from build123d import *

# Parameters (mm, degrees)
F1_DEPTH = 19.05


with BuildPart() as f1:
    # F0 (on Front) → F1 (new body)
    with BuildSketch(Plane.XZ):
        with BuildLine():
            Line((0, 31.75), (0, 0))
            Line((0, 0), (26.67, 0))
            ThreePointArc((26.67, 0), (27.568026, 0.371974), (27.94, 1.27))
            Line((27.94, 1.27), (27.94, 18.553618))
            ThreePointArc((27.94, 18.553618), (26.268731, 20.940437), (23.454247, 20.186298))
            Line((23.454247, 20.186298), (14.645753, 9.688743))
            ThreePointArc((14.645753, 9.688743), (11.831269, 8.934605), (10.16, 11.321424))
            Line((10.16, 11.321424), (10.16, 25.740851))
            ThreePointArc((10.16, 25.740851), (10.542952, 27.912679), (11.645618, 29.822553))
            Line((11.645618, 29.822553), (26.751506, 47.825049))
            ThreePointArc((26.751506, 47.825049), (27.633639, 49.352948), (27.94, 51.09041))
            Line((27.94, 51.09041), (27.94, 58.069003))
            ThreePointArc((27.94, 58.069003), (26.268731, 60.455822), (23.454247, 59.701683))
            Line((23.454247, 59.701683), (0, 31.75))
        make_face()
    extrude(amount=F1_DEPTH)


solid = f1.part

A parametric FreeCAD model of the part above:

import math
import FreeCAD as App
import Part
import Sketcher

V = App.Vector
Q = App.Units.Quantity

doc = App.newDocument("Part")
body = doc.addObject("PartDesign::Body", "Body")

# Sketch on XZ plane
sketch1 = body.newObject("Sketcher::SketchObject", "Sketch")
sketch1.AttachmentSupport = (doc.getObject("XZ_Plane"), [""])
sketch1.MapMode = "FlatFace"
sketch1.addGeometry([
    Part.LineSegment(V(0, 31.8, 0), V(0, 0, 0)),  # 0
    Part.LineSegment(V(0, 0, 0), V(26.7, 0, 0)),  # 1
    Part.ArcOfCircle(Part.Circle(V(26.7, 1.3, 0), V(0, 0, 1), 1.3), math.radians(-90), math.radians(0)),  # 2
    Part.LineSegment(V(27.9, 1.3, 0), V(27.9, 18.6, 0)),  # 3
    Part.ArcOfCircle(Part.Circle(V(25.4, 18.6, 0), V(0, 0, 1), 2.5), math.radians(0), math.radians(140)),  # 4
    Part.LineSegment(V(23.5, 20.2, 0), V(14.6, 9.7, 0)),  # 5
    Part.ArcOfCircle(Part.Circle(V(12.7, 11.3, 0), V(0, 0, 1), 2.5), math.radians(-180), math.radians(-40)),  # 6
    Part.LineSegment(V(10.2, 11.3, 0), V(10.2, 25.7, 0)),  # 7
    Part.ArcOfCircle(Part.Circle(V(16.5, 25.7, 0), V(0, 0, 1), 6.4), math.radians(140), math.radians(180)),  # 8
    Part.LineSegment(V(11.6, 29.8, 0), V(26.8, 47.8, 0)),  # 9
    Part.ArcOfCircle(Part.Circle(V(22.9, 51.1, 0), V(0, 0, 1), 5.1), math.radians(-40), math.radians(0)),  # 10
    Part.LineSegment(V(27.9, 51.1, 0), V(27.9, 58.1, 0)),  # 11
    Part.ArcOfCircle(Part.Circle(V(25.4, 58.1, 0), V(0, 0, 1), 2.5), math.radians(0), math.radians(140)),  # 12
    Part.LineSegment(V(23.5, 59.7, 0), V(0, 31.8, 0)),  # 13
], False)
sketch1.addConstraint([
    Sketcher.Constraint("Coincident", 0, 2, 1, 1),
    Sketcher.Constraint("Tangent", 1, 2, 2, 1),
    Sketcher.Constraint("Tangent", 2, 2, 3, 1),
    Sketcher.Constraint("Tangent", 3, 2, 4, 1),
    Sketcher.Constraint("Tangent", 4, 2, 5, 1),
    Sketcher.Constraint("Tangent", 5, 2, 6, 2),
    Sketcher.Constraint("Tangent", 6, 1, 7, 1),
    Sketcher.Constraint("Tangent", 7, 2, 8, 2),
    Sketcher.Constraint("Tangent", 8, 1, 9, 1),
    Sketcher.Constraint("Tangent", 9, 2, 10, 1),
    Sketcher.Constraint("Tangent", 10, 2, 11, 1),
    Sketcher.Constraint("Tangent", 11, 2, 12, 1),
    Sketcher.Constraint("Tangent", 12, 2, 13, 1),
    Sketcher.Constraint("Coincident", 13, 2, 0, 1),
    Sketcher.Constraint("Vertical", 0),
    Sketcher.Constraint("Horizontal", 1),
    Sketcher.Constraint("Vertical", 3),
    Sketcher.Constraint("Vertical", 7),
    Sketcher.Constraint("Vertical", 11),
    Sketcher.Constraint("Coincident", 0, 2, -1, 1),
    Sketcher.Constraint("Equal", 4, 6),
    Sketcher.Constraint("Equal", 6, 12),
    Sketcher.Constraint("Parallel", 5, 9),
    Sketcher.Constraint("Parallel", 9, 13),
    Sketcher.Constraint("Vertical", 4, 3, 12, 3),
    Sketcher.Constraint("Radius", 4, Q("0.1 in")),
    Sketcher.Constraint("Radius", 10, Q("0.1999998 in")),
    Sketcher.Constraint("Radius", 2, Q("0.0499999 in")),
    Sketcher.Constraint("Radius", 8, Q("0.2500002 in")),
    Sketcher.Constraint("DistanceX", -1, 1, 4, 3, Q("1 in")),
    Sketcher.Constraint("Angle", 5, Q("-129.999998 deg")),
    Sketcher.Constraint("DistanceY", 0, 2, 0, 1, Q("1.25 in")),
    Sketcher.Constraint("DistanceX", -1, 1, 6, 3, Q("0.5 in")),
    Sketcher.Constraint("DistanceY", 3, 1, 3, 2, Q("17.283618 mm")),
    Sketcher.Constraint("DistanceY", 7, 1, 7, 2, Q("14.419427 mm")),
])
pad1 = body.newObject("PartDesign::Pad", "Pad")
pad1.Profile = sketch1
pad1.Length = Q("0.75 in")

doc.recompute()
